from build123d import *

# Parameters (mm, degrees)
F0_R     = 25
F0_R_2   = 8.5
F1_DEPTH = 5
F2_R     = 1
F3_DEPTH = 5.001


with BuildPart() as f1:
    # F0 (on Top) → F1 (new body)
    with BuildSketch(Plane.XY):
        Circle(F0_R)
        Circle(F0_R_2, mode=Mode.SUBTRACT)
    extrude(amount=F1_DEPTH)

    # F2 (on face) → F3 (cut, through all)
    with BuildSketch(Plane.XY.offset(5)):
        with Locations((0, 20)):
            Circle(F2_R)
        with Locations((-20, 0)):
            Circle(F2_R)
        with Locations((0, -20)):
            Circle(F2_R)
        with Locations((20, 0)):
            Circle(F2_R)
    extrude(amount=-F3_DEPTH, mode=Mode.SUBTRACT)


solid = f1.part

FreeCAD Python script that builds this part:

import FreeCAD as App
import Part
import Sketcher
from FreeCAD import Vector

doc = App.newDocument("Part")
body = doc.addObject("PartDesign::Body", "Body")

sketch1 = doc.addObject("Sketcher::SketchObject", "Sketch")
body.addObject(sketch1)
sketch1.AttachmentSupport = (doc.XY_Plane, [""])
sketch1.MapMode = "FlatFace"
sketch1.addGeometry(Part.Circle(Vector(0, 0, 0), Vector(0, 0, 1), 25), False)
sketch1.addGeometry(Part.Circle(Vector(0, 0, 0), Vector(0, 0, 1), 8), False)
sketch1.addConstraint(Sketcher.Constraint("Coincident", 0, 3, -1, 1))
sketch1.addConstraint(Sketcher.Constraint("Coincident", 1, 3, -1, 1))
sketch1.addConstraint(Sketcher.Constraint("Diameter", 0, 50.0))
sketch1.addConstraint(Sketcher.Constraint("Diameter", 1, 17.0))
pad1 = doc.addObject("PartDesign::Pad", "Pad")
body.addObject(pad1)
pad1.Profile = sketch1
pad1.Length = 5

sketch2 = doc.addObject("Sketcher::SketchObject", "Sketch001")
body.addObject(sketch2)
sketch2.AttachmentSupport = (doc.XY_Plane, [""])
sketch2.MapMode = "FlatFace"
sketch2.AttachmentOffset = App.Placement(Vector(0, 0, 5), App.Rotation())
sketch2.addGeometry(Part.Circle(Vector(0, 20, 0), Vector(0, 0, 1), 1), False)
sketch2.addGeometry(Part.Circle(Vector(-20, 0, 0), Vector(0, 0, 1), 1), False)
sketch2.addGeometry(Part.Circle(Vector(0, -20, 0), Vector(0, 0, 1), 1), False)
sketch2.addGeometry(Part.Circle(Vector(20, 0, 0), Vector(0, 0, 1), 1), False)
sketch2.addConstraint(Sketcher.Constraint("Equal", 0, 1))
sketch2.addConstraint(Sketcher.Constraint("Equal", 1, 2))
sketch2.addConstraint(Sketcher.Constraint("Equal", 2, 3))
sketch2.addConstraint(Sketcher.Constraint("Symmetric", 0, 3, 2, 3, -1, 1))
sketch2.addConstraint(Sketcher.Constraint("Symmetric", 1, 3, 3, 3, -1, 1))
sketch2.addConstraint(Sketcher.Constraint("PointOnObject", 0, 3, -2))
sketch2.addConstraint(Sketcher.Constraint("PointOnObject", 1, 3, -1))
sketch2.addConstraint(Sketcher.Constraint("Diameter", 0, 2.0))
sketch2.addConstraint(Sketcher.Constraint("DistanceY", -1, 1, 0, 3, 20.0))
sketch2.addConstraint(Sketcher.Constraint("DistanceX", 1, 3, -1, 1, 20.0))
pocket1 = doc.addObject("PartDesign::Pocket", "Pocket")
body.addObject(pocket1)
pocket1.Profile = sketch2
pocket1.Type = "ThroughAll"

doc.recompute()
